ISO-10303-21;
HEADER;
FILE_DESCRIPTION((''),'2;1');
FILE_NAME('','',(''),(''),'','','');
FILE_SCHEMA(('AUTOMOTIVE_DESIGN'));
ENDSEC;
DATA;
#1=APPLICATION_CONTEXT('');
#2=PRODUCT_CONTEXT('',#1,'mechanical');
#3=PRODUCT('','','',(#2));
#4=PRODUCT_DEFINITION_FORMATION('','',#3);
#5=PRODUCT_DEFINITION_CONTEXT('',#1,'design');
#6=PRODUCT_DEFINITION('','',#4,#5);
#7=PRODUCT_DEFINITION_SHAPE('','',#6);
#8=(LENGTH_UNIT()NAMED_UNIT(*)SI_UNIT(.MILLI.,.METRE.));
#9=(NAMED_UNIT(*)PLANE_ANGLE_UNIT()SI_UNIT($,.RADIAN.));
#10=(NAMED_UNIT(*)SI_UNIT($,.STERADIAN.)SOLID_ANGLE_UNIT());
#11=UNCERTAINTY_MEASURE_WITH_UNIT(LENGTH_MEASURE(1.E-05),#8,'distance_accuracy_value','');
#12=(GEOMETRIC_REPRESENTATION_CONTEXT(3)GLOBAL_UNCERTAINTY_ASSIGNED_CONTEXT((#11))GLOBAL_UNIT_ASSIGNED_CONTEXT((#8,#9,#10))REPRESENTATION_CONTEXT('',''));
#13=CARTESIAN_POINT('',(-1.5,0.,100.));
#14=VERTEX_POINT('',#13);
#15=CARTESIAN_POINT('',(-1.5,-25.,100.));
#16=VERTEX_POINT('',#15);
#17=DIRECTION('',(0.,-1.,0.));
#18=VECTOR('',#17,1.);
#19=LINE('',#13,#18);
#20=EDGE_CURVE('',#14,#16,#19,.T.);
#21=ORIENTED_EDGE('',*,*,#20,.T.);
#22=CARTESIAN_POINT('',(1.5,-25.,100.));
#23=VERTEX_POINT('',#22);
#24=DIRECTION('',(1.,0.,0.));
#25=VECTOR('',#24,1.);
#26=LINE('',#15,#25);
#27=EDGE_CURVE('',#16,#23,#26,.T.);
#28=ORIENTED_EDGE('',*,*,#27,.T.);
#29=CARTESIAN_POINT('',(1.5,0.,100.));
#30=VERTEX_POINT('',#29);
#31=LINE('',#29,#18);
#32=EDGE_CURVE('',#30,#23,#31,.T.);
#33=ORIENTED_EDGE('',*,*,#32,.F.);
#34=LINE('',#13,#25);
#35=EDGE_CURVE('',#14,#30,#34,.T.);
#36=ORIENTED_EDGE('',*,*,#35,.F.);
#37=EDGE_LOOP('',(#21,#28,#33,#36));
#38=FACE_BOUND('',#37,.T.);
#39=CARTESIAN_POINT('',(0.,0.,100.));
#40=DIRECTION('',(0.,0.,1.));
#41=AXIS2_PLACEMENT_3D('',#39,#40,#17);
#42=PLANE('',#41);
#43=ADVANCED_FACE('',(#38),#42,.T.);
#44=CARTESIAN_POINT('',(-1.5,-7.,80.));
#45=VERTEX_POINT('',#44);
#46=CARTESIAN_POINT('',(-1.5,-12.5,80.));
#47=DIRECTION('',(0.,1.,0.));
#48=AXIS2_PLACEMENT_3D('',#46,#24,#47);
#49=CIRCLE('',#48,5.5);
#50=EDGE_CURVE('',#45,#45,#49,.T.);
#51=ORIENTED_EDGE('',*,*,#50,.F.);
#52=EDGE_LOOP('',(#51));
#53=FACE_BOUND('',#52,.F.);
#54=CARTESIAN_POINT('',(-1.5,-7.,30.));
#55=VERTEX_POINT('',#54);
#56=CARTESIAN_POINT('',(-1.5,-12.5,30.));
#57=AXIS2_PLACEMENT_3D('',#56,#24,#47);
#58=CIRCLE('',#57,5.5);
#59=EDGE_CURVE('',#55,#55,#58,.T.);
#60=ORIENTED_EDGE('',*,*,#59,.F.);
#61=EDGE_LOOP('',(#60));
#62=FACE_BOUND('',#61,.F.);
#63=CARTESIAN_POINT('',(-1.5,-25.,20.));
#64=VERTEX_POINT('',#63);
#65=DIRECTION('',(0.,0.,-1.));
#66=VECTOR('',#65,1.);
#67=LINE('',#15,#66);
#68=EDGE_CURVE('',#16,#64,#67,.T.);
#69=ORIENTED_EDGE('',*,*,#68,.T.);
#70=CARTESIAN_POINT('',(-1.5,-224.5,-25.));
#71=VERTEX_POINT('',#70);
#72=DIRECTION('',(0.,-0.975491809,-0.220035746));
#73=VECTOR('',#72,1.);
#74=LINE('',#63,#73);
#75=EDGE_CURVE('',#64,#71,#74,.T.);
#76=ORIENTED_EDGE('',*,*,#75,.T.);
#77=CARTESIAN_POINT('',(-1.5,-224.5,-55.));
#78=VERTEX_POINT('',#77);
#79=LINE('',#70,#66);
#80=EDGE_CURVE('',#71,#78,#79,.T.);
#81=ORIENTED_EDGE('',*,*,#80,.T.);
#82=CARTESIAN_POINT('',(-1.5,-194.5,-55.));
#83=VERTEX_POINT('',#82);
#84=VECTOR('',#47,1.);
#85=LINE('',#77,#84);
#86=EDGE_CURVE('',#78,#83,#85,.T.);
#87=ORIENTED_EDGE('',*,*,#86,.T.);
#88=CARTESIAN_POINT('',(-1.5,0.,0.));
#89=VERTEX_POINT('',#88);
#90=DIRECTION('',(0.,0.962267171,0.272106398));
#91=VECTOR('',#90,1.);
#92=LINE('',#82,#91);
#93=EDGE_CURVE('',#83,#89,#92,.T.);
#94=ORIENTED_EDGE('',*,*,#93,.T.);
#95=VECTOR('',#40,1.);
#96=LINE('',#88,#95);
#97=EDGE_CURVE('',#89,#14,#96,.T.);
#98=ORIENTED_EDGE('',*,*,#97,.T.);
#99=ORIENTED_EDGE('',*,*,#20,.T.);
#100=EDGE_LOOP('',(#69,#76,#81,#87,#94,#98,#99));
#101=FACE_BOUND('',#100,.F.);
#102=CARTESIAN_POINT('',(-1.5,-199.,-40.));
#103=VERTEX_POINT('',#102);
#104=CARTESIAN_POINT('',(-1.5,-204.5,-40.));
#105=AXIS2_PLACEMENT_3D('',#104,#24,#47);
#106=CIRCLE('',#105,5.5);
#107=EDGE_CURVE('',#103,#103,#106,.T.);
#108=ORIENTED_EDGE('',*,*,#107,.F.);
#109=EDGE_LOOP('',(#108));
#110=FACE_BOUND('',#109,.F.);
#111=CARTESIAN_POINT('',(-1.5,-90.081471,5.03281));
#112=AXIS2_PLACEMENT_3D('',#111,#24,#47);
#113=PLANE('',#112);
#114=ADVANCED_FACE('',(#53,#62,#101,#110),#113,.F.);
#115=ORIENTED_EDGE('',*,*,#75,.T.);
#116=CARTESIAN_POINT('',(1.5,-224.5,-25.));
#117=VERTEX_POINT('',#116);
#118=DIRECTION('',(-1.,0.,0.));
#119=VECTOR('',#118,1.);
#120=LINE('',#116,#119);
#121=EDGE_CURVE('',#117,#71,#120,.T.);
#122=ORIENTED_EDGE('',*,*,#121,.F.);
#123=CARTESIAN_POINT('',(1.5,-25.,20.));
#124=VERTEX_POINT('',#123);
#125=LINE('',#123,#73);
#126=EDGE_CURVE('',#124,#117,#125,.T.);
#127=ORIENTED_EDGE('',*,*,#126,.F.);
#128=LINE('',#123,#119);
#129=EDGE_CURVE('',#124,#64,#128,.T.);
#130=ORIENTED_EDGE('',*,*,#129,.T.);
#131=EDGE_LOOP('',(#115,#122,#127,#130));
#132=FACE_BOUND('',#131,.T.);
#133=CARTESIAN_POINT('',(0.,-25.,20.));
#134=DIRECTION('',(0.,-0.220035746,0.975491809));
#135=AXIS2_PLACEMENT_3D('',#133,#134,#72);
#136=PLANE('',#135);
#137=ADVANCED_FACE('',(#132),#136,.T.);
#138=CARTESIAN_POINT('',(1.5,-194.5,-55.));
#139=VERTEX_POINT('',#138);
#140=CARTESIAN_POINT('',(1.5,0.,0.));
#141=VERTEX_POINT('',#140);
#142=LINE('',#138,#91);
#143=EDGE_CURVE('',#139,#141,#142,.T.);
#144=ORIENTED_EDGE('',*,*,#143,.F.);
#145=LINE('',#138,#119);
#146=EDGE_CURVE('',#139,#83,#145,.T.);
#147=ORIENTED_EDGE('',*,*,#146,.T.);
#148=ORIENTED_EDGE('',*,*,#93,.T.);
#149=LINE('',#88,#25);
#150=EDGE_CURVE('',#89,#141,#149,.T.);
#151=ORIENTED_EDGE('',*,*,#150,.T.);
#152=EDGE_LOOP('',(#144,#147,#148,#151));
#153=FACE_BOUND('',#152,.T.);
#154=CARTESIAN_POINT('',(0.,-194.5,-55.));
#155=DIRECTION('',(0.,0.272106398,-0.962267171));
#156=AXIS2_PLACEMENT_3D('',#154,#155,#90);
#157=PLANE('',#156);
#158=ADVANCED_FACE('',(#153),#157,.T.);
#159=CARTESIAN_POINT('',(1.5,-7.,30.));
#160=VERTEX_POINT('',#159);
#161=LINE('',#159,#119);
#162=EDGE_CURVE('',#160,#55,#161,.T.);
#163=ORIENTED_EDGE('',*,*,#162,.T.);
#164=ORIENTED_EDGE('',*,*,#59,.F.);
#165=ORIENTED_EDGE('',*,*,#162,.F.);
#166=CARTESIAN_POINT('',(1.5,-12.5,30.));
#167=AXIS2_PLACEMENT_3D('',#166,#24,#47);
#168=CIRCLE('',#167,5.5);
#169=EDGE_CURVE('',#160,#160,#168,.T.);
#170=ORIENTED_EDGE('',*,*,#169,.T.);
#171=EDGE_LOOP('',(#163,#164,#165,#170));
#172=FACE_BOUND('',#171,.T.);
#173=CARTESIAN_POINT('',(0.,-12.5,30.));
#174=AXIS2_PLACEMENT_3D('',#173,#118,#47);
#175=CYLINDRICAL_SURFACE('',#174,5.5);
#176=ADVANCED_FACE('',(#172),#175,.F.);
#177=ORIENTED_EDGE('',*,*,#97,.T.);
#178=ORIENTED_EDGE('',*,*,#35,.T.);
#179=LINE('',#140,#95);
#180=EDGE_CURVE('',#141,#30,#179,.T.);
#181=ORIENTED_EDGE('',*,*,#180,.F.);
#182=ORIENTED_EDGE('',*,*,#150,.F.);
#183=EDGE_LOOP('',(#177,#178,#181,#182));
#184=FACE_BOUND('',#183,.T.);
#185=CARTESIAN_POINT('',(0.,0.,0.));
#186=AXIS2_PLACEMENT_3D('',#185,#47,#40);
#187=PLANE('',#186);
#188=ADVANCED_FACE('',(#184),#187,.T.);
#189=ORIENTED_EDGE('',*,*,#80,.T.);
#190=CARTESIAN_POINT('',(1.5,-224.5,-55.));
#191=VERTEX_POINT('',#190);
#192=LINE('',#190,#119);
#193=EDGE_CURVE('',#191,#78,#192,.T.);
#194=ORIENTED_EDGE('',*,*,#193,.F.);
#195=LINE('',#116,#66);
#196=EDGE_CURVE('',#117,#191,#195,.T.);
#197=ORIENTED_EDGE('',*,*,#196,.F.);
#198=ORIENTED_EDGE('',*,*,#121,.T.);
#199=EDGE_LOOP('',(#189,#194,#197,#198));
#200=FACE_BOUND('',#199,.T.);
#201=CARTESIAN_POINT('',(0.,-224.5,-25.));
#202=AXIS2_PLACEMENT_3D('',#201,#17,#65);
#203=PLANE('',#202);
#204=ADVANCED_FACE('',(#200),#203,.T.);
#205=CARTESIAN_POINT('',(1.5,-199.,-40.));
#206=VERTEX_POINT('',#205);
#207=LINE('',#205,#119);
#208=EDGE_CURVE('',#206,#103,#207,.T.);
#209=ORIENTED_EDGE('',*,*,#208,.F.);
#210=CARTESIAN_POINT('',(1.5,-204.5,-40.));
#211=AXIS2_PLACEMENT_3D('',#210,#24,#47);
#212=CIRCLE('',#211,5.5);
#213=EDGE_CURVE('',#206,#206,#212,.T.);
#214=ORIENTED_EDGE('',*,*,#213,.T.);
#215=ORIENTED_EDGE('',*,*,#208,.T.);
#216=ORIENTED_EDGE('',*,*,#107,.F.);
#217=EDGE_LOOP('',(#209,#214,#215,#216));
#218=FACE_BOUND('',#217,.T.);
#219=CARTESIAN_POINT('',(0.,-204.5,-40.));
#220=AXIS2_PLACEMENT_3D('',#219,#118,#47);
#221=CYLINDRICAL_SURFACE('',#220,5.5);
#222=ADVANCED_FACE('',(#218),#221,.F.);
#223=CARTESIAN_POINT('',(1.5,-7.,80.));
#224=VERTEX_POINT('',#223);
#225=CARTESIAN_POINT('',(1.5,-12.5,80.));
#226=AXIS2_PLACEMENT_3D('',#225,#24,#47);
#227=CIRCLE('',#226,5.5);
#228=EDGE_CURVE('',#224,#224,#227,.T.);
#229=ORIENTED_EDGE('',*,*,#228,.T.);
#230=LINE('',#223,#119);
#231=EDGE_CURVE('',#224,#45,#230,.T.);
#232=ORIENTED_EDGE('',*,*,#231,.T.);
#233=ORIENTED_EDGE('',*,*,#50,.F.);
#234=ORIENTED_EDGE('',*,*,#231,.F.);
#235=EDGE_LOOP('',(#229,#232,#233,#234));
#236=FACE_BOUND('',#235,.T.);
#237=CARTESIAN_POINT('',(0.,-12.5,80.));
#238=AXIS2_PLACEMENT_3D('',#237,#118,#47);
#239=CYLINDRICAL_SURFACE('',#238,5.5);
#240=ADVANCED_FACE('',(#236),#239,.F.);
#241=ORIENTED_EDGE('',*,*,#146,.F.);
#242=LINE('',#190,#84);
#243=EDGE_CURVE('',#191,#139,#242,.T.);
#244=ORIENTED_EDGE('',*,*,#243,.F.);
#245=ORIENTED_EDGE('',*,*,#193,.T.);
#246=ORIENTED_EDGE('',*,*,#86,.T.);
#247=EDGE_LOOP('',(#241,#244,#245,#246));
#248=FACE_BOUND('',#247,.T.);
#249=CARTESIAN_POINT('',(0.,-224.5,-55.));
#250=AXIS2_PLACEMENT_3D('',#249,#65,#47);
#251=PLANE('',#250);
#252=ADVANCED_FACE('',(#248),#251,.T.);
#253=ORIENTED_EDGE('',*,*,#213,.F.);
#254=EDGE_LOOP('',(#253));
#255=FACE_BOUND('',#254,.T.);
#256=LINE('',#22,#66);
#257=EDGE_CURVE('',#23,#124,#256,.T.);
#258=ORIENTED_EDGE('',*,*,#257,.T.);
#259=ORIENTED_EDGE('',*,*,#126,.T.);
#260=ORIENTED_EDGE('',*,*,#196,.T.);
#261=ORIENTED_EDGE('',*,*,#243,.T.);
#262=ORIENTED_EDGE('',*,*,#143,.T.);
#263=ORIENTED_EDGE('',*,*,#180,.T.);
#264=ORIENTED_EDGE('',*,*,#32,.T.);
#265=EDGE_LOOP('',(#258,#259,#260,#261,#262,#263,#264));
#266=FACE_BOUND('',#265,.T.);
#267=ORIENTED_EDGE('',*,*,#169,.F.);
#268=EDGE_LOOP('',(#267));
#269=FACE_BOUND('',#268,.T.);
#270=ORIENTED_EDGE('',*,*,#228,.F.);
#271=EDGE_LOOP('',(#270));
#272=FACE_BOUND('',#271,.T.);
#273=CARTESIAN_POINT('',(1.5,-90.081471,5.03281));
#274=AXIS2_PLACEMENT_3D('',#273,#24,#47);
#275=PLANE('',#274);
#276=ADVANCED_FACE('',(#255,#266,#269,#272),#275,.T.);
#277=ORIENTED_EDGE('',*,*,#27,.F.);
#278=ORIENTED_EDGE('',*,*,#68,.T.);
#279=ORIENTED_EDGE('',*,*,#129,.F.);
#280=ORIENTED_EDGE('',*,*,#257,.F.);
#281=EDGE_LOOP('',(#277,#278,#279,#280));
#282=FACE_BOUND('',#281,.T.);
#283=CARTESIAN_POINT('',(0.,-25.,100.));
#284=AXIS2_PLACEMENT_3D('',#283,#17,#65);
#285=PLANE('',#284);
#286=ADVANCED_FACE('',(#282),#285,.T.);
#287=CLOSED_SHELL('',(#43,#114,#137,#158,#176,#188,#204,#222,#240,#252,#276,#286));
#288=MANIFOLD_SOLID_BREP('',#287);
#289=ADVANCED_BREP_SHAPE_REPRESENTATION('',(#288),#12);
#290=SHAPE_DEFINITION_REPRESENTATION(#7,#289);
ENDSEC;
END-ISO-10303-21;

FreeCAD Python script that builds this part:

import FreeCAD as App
import Part
import Sketcher

V = App.Vector
Q = App.Units.Quantity


def add_polygon(sketch, points):
    """Adds a closed chain of lines whose ends are joined by coincident constraints."""
    first, n = sketch.GeometryCount, len(points)
    for a, b in zip(points, points[1:] + points[:1]):
        sketch.addGeometry(Part.LineSegment(App.Vector(*a, 0), App.Vector(*b, 0)), False)
    for i in range(n):
        sketch.addConstraint(Sketcher.Constraint("Coincident", first + i, 2, first + (i + 1) % n, 1))

doc = App.newDocument("Part")
body = doc.addObject("PartDesign::Body", "Body")

# Sketch on YZ plane
sketch1 = body.newObject("Sketcher::SketchObject", "Sketch")
sketch1.AttachmentSupport = (doc.getObject("YZ_Plane"), [""])
sketch1.MapMode = "FlatFace"
add_polygon(sketch1, [(-194, -55), (0, 0), (0, 100), (-25, 100), (-25, 20), (-224, -25), (-224, -55)])  # lines 0-6
sketch1.addGeometry(Part.Circle(V(-204, -40, 0), V(0, 0, 1), 6), False)  # 7
sketch1.addGeometry(Part.Circle(V(-12, 30, 0), V(0, 0, 1), 6), False)  # 8
sketch1.addGeometry(Part.Circle(V(-12, 80, 0), V(0, 0, 1), 6), False)  # 9
sketch1.addConstraint([
    Sketcher.Constraint("Vertical", 1),
    Sketcher.Constraint("Horizontal", 2),
    Sketcher.Constraint("Vertical", 3),
    Sketcher.Constraint("Vertical", 5),
    Sketcher.Constraint("Horizontal", 6),
    Sketcher.Constraint("Coincident", 0, 2, -1, 1),
    Sketcher.Constraint("Equal", 7, 8),
    Sketcher.Constraint("Equal", 8, 9),
    Sketcher.Constraint("Vertical", 8, 3, 9, 3),
    Sketcher.Constraint("Equal", 6, 5),
    Sketcher.Constraint("Diameter", 7, Q("11 mm")),
    Sketcher.Constraint("DistanceX", 2, 2, 2, 1, Q("25 mm")),
    Sketcher.Constraint("DistanceX", 6, 1, 6, 2, Q("30 mm")),
    Sketcher.Constraint("DistanceY", 1, 1, 1, 2, Q("100 mm")),
    Sketcher.Constraint("DistanceY", 3, 2, 3, 1, Q("80 mm")),
    Sketcher.Constraint("DistanceY", 7, 3, -1, 1, Q("40 mm")),
    Sketcher.Constraint("DistanceY", -1, 1, 8, 3, Q("30 mm")),
    Sketcher.Constraint("DistanceY", -1, 1, 9, 3, Q("80 mm")),
    Sketcher.Constraint("DistanceY", 4, 2, -1, 1, Q("25 mm")),
    Sketcher.Constraint("DistanceX", 7, 3, 8, 3, Q("192 mm")),
    Sketcher.Constraint("DistanceX", 4, 2, 7, 3, Q("20 mm")),
    Sketcher.Constraint("DistanceX", 7, 3, -1, 1, Q("204.5 mm")),
])
pad1 = body.newObject("PartDesign::Pad", "Pad")
pad1.Profile = sketch1
pad1.Length = 3
pad1.Midplane = True

doc.recompute()
